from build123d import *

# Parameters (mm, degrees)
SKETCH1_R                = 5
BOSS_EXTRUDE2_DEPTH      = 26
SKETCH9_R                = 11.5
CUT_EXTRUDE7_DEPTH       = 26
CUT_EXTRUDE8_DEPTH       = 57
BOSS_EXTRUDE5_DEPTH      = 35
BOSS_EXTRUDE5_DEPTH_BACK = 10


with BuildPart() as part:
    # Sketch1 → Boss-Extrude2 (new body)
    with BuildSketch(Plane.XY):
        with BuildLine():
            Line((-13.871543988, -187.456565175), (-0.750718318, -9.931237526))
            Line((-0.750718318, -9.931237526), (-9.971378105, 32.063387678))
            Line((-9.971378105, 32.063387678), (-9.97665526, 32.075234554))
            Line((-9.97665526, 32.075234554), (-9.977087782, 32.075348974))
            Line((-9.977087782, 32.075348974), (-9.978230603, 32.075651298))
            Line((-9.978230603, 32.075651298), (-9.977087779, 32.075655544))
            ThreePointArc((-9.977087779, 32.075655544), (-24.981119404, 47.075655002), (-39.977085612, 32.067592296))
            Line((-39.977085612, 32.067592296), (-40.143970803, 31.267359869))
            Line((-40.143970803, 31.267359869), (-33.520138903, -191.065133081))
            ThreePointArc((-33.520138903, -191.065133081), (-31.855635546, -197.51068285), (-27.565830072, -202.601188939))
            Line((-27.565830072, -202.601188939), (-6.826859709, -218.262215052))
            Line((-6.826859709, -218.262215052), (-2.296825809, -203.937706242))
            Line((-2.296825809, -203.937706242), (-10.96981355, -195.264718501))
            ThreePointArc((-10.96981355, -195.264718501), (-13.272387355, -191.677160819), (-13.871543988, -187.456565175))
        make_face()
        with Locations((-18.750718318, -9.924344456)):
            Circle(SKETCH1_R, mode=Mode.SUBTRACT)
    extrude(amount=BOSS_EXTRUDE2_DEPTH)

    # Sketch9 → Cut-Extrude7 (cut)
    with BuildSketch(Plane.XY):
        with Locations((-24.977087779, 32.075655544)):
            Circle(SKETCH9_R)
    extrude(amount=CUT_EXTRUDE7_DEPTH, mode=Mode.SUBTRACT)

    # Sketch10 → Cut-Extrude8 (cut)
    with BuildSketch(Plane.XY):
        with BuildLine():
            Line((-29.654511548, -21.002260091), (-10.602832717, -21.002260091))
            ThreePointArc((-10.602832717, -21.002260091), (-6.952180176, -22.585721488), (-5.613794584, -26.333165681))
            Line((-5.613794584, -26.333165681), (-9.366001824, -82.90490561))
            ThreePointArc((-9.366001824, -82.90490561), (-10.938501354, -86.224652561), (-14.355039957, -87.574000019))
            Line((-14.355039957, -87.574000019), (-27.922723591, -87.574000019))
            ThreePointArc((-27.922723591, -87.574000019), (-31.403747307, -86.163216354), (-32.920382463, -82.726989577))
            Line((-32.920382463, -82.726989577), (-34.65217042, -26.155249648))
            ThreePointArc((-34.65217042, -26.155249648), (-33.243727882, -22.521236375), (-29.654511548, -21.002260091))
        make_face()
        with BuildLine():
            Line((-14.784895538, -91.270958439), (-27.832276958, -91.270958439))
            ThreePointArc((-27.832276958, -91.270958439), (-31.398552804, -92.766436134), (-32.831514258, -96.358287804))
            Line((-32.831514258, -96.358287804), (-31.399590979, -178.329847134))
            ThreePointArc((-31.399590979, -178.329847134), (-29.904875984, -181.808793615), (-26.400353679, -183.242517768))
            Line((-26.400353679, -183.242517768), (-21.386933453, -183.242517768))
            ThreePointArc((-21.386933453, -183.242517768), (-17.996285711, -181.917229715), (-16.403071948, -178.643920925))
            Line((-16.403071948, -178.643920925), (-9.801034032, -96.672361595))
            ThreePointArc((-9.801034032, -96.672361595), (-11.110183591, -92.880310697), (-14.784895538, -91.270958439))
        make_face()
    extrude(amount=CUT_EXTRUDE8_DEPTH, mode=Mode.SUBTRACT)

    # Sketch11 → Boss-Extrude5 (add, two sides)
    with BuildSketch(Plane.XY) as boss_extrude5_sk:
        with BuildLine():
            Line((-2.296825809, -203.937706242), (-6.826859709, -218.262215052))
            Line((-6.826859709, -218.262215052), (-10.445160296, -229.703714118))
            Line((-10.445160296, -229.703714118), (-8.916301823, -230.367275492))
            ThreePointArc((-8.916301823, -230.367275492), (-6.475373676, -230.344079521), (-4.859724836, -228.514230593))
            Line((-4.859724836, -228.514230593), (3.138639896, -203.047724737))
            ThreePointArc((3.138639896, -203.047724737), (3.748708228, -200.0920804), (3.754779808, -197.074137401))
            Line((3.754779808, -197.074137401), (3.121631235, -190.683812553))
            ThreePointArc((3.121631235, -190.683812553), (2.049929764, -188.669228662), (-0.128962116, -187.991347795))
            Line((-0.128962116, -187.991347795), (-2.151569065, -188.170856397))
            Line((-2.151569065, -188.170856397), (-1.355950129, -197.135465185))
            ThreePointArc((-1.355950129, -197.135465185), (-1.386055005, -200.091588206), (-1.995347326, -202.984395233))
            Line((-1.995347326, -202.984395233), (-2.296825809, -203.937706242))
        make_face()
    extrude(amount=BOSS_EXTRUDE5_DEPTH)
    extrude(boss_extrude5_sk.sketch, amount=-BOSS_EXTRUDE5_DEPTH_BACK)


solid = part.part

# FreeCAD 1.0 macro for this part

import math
import FreeCAD as App
import Part
import Sketcher
Q = App.Units.Quantity

doc = App.newDocument("Part")
body = doc.addObject("PartDesign::Body", "Body")

# Sketch on XY plane
sketch1 = body.newObject("Sketcher::SketchObject", "Sketch")
sketch1.AttachmentSupport = (doc.getObject("XY_Plane"), [""])
sketch1.MapMode = "FlatFace"
sketch1.addGeometry([
    Part.LineSegment(App.Vector(-13.871544, -187.456565, 0), App.Vector(-0.750718, -9.931238, 0)),  # 0
    Part.LineSegment(App.Vector(-0.750718, -9.931238, 0), App.Vector(-9.971378, 32.063388, 0)),  # 1
    Part.LineSegment(App.Vector(-9.971378, 32.063388, 0), App.Vector(-9.976655, 32.075235, 0)),  # 2
    Part.LineSegment(App.Vector(-9.976655, 32.075235, 0), App.Vector(-9.977088, 32.075349, 0)),  # 3
    Part.LineSegment(App.Vector(-9.977088, 32.075349, 0), App.Vector(-9.978231, 32.075651, 0)),  # 4
    Part.LineSegment(App.Vector(-9.978231, 32.075651, 0), App.Vector(-9.977088, 32.075656, 0)),  # 5
    Part.ArcOfCircle(Part.Circle(App.Vector(-24.977088, 32.075656, 0), App.Vector(0, 0, 1), 15), math.radians(0), math.radians(180.030799)),  # 6
    Part.LineSegment(App.Vector(-39.977086, 32.067592, 0), App.Vector(-40.143971, 31.26736, 0)),  # 7
    Part.LineSegment(App.Vector(-40.143971, 31.26736, 0), App.Vector(-33.520139, -191.065133, 0)),  # 8
    Part.ArcOfCircle(Part.Circle(App.Vector(-18.526427, -190.630842, 0), App.Vector(0, 0, 1), 15), math.radians(-178.3409), math.radians(-127.058265)),  # 9
    Part.LineSegment(App.Vector(-27.56583, -202.601189, 0), App.Vector(-6.82686, -218.262215, 0)),  # 10
    Part.LineSegment(App.Vector(-6.82686, -218.262215, 0), App.Vector(-2.296826, -203.937706, 0)),  # 11
    Part.LineSegment(App.Vector(-2.296826, -203.937706, 0), App.Vector(-10.969814, -195.264719, 0)),  # 12
    Part.ArcOfCircle(Part.Circle(App.Vector(-3.898746, -188.193651, 0), App.Vector(0, 0, 1), 10), math.radians(175.772978), math.radians(225)),  # 13
    Part.Circle(App.Vector(-18.750718, -9.924344, 0), App.Vector(0, 0, 1), 5),  # 14
], False)
sketch1.addConstraint([
    Sketcher.Constraint("Coincident", 0, 2, 1, 1),
    Sketcher.Constraint("Coincident", 1, 2, 2, 1),
    Sketcher.Constraint("Coincident", 2, 2, 3, 1),
    Sketcher.Constraint("Coincident", 3, 2, 4, 1),
    Sketcher.Constraint("Coincident", 4, 2, 5, 1),
    Sketcher.Constraint("Coincident", 5, 2, 6, 1),
    Sketcher.Constraint("Coincident", 6, 2, 7, 1),
    Sketcher.Constraint("Coincident", 7, 2, 8, 1),
    Sketcher.Constraint("Coincident", 8, 2, 9, 1),
    Sketcher.Constraint("Coincident", 9, 2, 10, 1),
    Sketcher.Constraint("Coincident", 10, 2, 11, 1),
    Sketcher.Constraint("Coincident", 11, 2, 12, 1),
    Sketcher.Constraint("Coincident", 12, 2, 13, 2),
    Sketcher.Constraint("Coincident", 13, 1, 0, 1),
    Sketcher.Constraint("Diameter", 14, Q("10 mm")),
    Sketcher.Constraint("Radius", 6, Q("15 mm")),
    Sketcher.Constraint("Radius", 9, Q("15 mm")),
    Sketcher.Constraint("Radius", 13, Q("10 mm")),
    Sketcher.Constraint("DistanceY", 14, 3, 6, 3, Q("42 mm")),
    Sketcher.Constraint("DistanceX", 14, 3, 0, 2, Q("18 mm")),
    Sketcher.Constraint("DistanceX", 6, 3, 3, 2, Q("15 mm")),
    Sketcher.Constraint("DistanceX", 9, 3, 11, 2, Q("16.229601 mm")),
    Sketcher.Constraint("DistanceX", 13, 1, 13, 3, Q("9.972798 mm")),
    Sketcher.Constraint("Distance", 1, Q("42.994989 mm")),
    Sketcher.Constraint("Distance", 2, Q("0.012969 mm")),
    Sketcher.Constraint("Distance", 7, Q("0.817449 mm")),
    Sketcher.Constraint("Distance", 8, Q("222.431141 mm")),
    Sketcher.Constraint("Distance", 11, Q("15.02374 mm")),
    Sketcher.Constraint("DistanceY", 13, 3, -1, 1, Q("188.193651 mm")),
    Sketcher.Constraint("DistanceX", 14, 3, -1, 1, Q("18.750718 mm")),
    Sketcher.Constraint("DistanceX", 1, 2, -1, 1, Q("9.971378 mm")),
    Sketcher.Constraint("DistanceY", -1, 1, 3, 2, Q("32.075349 mm")),
    Sketcher.Constraint("DistanceX", 4, 2, -1, 1, Q("9.978231 mm")),
    Sketcher.Constraint("DistanceY", -1, 1, 4, 2, Q("32.075651 mm")),
    Sketcher.Constraint("DistanceX", 7, 2, -1, 1, Q("40.143971 mm")),
    Sketcher.Constraint("DistanceY", -1, 1, 7, 2, Q("31.26736 mm")),
    Sketcher.Constraint("DistanceX", 8, 2, -1, 1, Q("33.520139 mm")),
    Sketcher.Constraint("DistanceX", 9, 2, -1, 1, Q("27.56583 mm")),
    Sketcher.Constraint("DistanceY", 9, 2, -1, 1, Q("202.601189 mm")),
    Sketcher.Constraint("DistanceX", 10, 2, -1, 1, Q("6.82686 mm")),
    Sketcher.Constraint("DistanceY", 12, 2, -1, 1, Q("195.264719 mm")),
    Sketcher.Constraint("DistanceX", 6, 3, 9, 3, Q("6.450661 mm")),
    Sketcher.Constraint("DistanceX", 9, 3, 13, 3, Q("14.627681 mm")),
    Sketcher.Constraint("DistanceY", 13, 3, 1, 2, Q("220.257038 mm")),
    Sketcher.Constraint("DistanceY", 2, 2, 6, 3, Q("0.000421 mm")),
    Sketcher.Constraint("DistanceX", 2, 2, 13, 3, Q("6.07791 mm")),
    Sketcher.Constraint("DistanceY", 2, 2, 5, 2, Q("0.000421 mm")),
    Sketcher.Constraint("DistanceY", 10, 2, 8, 2, Q("27.197082 mm")),
])
pad1 = body.newObject("PartDesign::Pad", "Pad")
pad1.Profile = sketch1
pad1.Length = 26

# Sketch on XY plane
sketch2 = body.newObject("Sketcher::SketchObject", "Sketch001")
sketch2.AttachmentSupport = (doc.getObject("XY_Plane"), [""])
sketch2.MapMode = "FlatFace"
sketch2.addGeometry(Part.Circle(App.Vector(-25, 32, 0), App.Vector(0, 0, 1), 12), False)
sketch2.addConstraint([
    Sketcher.Constraint("Diameter", 0, Q("23 mm")),
    Sketcher.Constraint("DistanceX", 0, 3, -1, 1, Q("24.977088 mm")),
    Sketcher.Constraint("DistanceY", -1, 1, 0, 3, Q("32.075656 mm")),
])
pocket1 = body.newObject("PartDesign::Pocket", "Pocket")
pocket1.Profile = sketch2
pocket1.Length = 26
pocket1.Reversed = True

# Sketch on XY plane
sketch3 = body.newObject("Sketcher::SketchObject", "Sketch002")
sketch3.AttachmentSupport = (doc.getObject("XY_Plane"), [""])
sketch3.MapMode = "FlatFace"
sketch3.addGeometry([
    Part.LineSegment(App.Vector(-10.6, -21, 0), App.Vector(-29.7, -21, 0)),  # 0
    Part.ArcOfCircle(Part.Circle(App.Vector(-29.7, -26, 0), App.Vector(0, 0, 1), 5), math.radians(90), math.radians(182)),  # 1
    Part.LineSegment(App.Vector(-34.7, -26.2, 0), App.Vector(-32.9, -82.7, 0)),  # 2
    Part.ArcOfCircle(Part.Circle(App.Vector(-27.9, -82.6, 0), App.Vector(0, 0, 1), 5), math.radians(-178), math.radians(-90)),  # 3
    Part.LineSegment(App.Vector(-27.9, -87.6, 0), App.Vector(-14.4, -87.6, 0)),  # 4
    Part.ArcOfCircle(Part.Circle(App.Vector(-14.4, -82.6, 0), App.Vector(0, 0, 1), 5), math.radians(-90), math.radians(-4)),  # 5
    Part.LineSegment(App.Vector(-9.4, -82.9, 0), App.Vector(-5.6, -26.3, 0)),  # 6
    Part.ArcOfCircle(Part.Circle(App.Vector(-10.6, -26, 0), App.Vector(0, 0, 1), 5), math.radians(-4), math.radians(90)),  # 7
    Part.LineSegment(App.Vector(-14.8, -91.3, 0), App.Vector(-27.8, -91.3, 0)),  # 8
    Part.ArcOfCircle(Part.Circle(App.Vector(-27.8, -96.3, 0), App.Vector(0, 0, 1), 5), math.radians(90), math.radians(181)),  # 9
    Part.LineSegment(App.Vector(-32.8, -96.4, 0), App.Vector(-31.4, -178.3, 0)),  # 10
    Part.ArcOfCircle(Part.Circle(App.Vector(-26.4, -178.2, 0), App.Vector(0, 0, 1), 5), math.radians(-179), math.radians(-90)),  # 11
    Part.LineSegment(App.Vector(-26.4, -183.2, 0), App.Vector(-21.4, -183.2, 0)),  # 12
    Part.ArcOfCircle(Part.Circle(App.Vector(-21.4, -178.2, 0), App.Vector(0, 0, 1), 5), math.radians(-90), math.radians(-5)),  # 13
    Part.LineSegment(App.Vector(-16.4, -178.6, 0), App.Vector(-9.8, -96.7, 0)),  # 14
    Part.ArcOfCircle(Part.Circle(App.Vector(-14.8, -96.3, 0), App.Vector(0, 0, 1), 5), math.radians(-5), math.radians(90)),  # 15
], False)
sketch3.addConstraint([
    Sketcher.Constraint("Tangent", 0, 2, 1, 1),
    Sketcher.Constraint("Tangent", 1, 2, 2, 1),
    Sketcher.Constraint("Tangent", 2, 2, 3, 1),
    Sketcher.Constraint("Tangent", 3, 2, 4, 1),
    Sketcher.Constraint("Tangent", 4, 2, 5, 1),
    Sketcher.Constraint("Tangent", 5, 2, 6, 1),
    Sketcher.Constraint("Tangent", 6, 2, 7, 1),
    Sketcher.Constraint("Tangent", 7, 2, 0, 1),
    Sketcher.Constraint("Tangent", 8, 2, 9, 1),
    Sketcher.Constraint("Tangent", 9, 2, 10, 1),
    Sketcher.Constraint("Tangent", 10, 2, 11, 1),
    Sketcher.Constraint("Tangent", 11, 2, 12, 1),
    Sketcher.Constraint("Tangent", 12, 2, 13, 1),
    Sketcher.Constraint("Tangent", 13, 2, 14, 1),
    Sketcher.Constraint("Tangent", 14, 2, 15, 1),
    Sketcher.Constraint("Tangent", 15, 2, 8, 1),
    Sketcher.Constraint("Horizontal", 0),
    Sketcher.Constraint("Horizontal", 4),
    Sketcher.Constraint("Horizontal", 8),
    Sketcher.Constraint("Horizontal", 12),
    Sketcher.Constraint("Equal", 1, 3),
    Sketcher.Constraint("Equal", 3, 5),
    Sketcher.Constraint("Equal", 5, 7),
    Sketcher.Constraint("Equal", 7, 9),
    Sketcher.Constraint("Equal", 9, 11),
    Sketcher.Constraint("Equal", 11, 13),
    Sketcher.Constraint("Equal", 13, 15),
    Sketcher.Constraint("Radius", 1, Q("5 mm")),
    Sketcher.Constraint("DistanceY", 3, 3, -1, 1, Q("82.574 mm")),
    Sketcher.Constraint("DistanceX", 5, 2, -1, 1, Q("9.366002 mm")),
    Sketcher.Constraint("DistanceX", 0, 2, 0, 1, Q("19.051679 mm")),
    Sketcher.Constraint("DistanceX", 8, 2, 8, 1, Q("13.047381 mm")),
    Sketcher.Constraint("DistanceX", 12, 1, 12, 2, Q("5.01342 mm")),
    Sketcher.Constraint("DistanceY", 9, 3, 1, 3, Q("70.268698 mm")),
    Sketcher.Constraint("DistanceY", 9, 2, 2, 2, Q("13.631298 mm")),
    Sketcher.Constraint("Distance", 2, Q("56.598241 mm")),
    Sketcher.Constraint("Distance", 6, Q("56.696039 mm")),
    Sketcher.Constraint("DistanceX", 4, 1, 4, 2, Q("13.567684 mm")),
    Sketcher.Constraint("DistanceX", 10, 2, -1, 1, Q("31.399591 mm")),
    Sketcher.Constraint("DistanceY", 13, 2, -1, 1, Q("178.643921 mm")),
])
pocket2 = body.newObject("PartDesign::Pocket", "Pocket001")
pocket2.Profile = sketch3
pocket2.Length = 57
pocket2.Reversed = True

# Sketch on XY plane
sketch4 = body.newObject("Sketcher::SketchObject", "Sketch003")
sketch4.AttachmentSupport = (doc.getObject("XY_Plane"), [""])
sketch4.MapMode = "FlatFace"
sketch4.addGeometry([
    Part.LineSegment(App.Vector(-2.3, -203.9, 0), App.Vector(-10.4, -229.7, 0)),  # 0
    Part.LineSegment(App.Vector(-10.4, -229.7, 0), App.Vector(-8.9, -230.4, 0)),  # 1
    Part.ArcOfCircle(Part.Circle(App.Vector(-7.7, -227.6, 0), App.Vector(0, 0, 1), 3), math.radians(-113), math.radians(-17)),  # 2
    Part.LineSegment(App.Vector(-4.9, -228.5, 0), App.Vector(3.1, -203, 0)),  # 3
    Part.ArcOfCircle(Part.Circle(App.Vector(-11.2, -198.6, 0), App.Vector(0, 0, 1), 15), math.radians(-17), math.radians(6)),  # 4
    Part.LineSegment(App.Vector(3.8, -197.1, 0), App.Vector(3.1, -190.7, 0)),  # 5
    Part.ArcOfCircle(Part.Circle(App.Vector(0.1, -191, 0), App.Vector(0, 0, 1), 3), math.radians(6), math.radians(95)),  # 6
    Part.LineSegment(App.Vector(-0.1, -188, 0), App.Vector(-2.2, -188.2, 0)),  # 7
    Part.LineSegment(App.Vector(-2.2, -188.2, 0), App.Vector(-1.4, -197.1, 0)),  # 8
    Part.ArcOfCircle(Part.Circle(App.Vector(-16.3, -198.5, 0), App.Vector(0, 0, 1), 15), math.radians(-18), math.radians(5)),  # 9
    Part.LineSegment(App.Vector(-2, -203, 0), App.Vector(-2.3, -203.9, 0)),  # 10
], False)
sketch4.addConstraint([
    Sketcher.Constraint("Coincident", 0, 2, 1, 1),
    Sketcher.Constraint("Tangent", 1, 2, 2, 1),
    Sketcher.Constraint("Tangent", 2, 2, 3, 1),
    Sketcher.Constraint("Tangent", 3, 2, 4, 1),
    Sketcher.Constraint("Tangent", 4, 2, 5, 1),
    Sketcher.Constraint("Tangent", 5, 2, 6, 1),
    Sketcher.Constraint("Tangent", 6, 2, 7, 1),
    Sketcher.Constraint("Coincident", 7, 2, 8, 1),
    Sketcher.Constraint("Tangent", 8, 2, 9, 2),
    Sketcher.Constraint("Tangent", 9, 1, 10, 1),
    Sketcher.Constraint("Coincident", 10, 2, 0, 1),
    Sketcher.Constraint("Equal", 2, 6),
    Sketcher.Constraint("Equal", 4, 9),
    Sketcher.Constraint("Perpendicular", 7, 8),
    Sketcher.Constraint("Parallel", 0, 10),
    Sketcher.Constraint("Radius", 2, Q("3 mm")),
    Sketcher.Constraint("Radius", 4, Q("15 mm")),
    Sketcher.Constraint("DistanceX", 9, 3, 4, 2, Q("20.052001 mm")),
    Sketcher.Constraint("DistanceY", 6, 3, -1, 1, Q("190.979602 mm")),
    Sketcher.Constraint("DistanceX", 1, 2, -1, 1, Q("8.916302 mm")),
    Sketcher.Constraint("DistanceY", 2, 3, 6, 3, Q("36.635701 mm")),
    Sketcher.Constraint("DistanceX", 7, 2, 5, 2, Q("5.2732 mm")),
    Sketcher.Constraint("DistanceX", 8, 2, 6, 3, Q("1.492199 mm")),
    Sketcher.Constraint("Distance", 0, Q("27.02374 mm")),
    Sketcher.Constraint("Distance", 1, Q("1.66665 mm")),
    Sketcher.Constraint("Distance", 3, Q("26.69301 mm")),
    Sketcher.Constraint("DistanceX", 2, 3, -1, 1, Q("7.721879 mm")),
    Sketcher.Constraint("DistanceX", -1, 1, 6, 3, Q("0.136249 mm")),
    Sketcher.Constraint("DistanceX", 9, 3, -1, 1, Q("16.297221 mm")),
])
pad2 = body.newObject("PartDesign::Pad", "Pad001")
pad2.Profile = sketch4
pad2.Type = "TwoLengths"
pad2.Length = 35
pad2.Length2 = 10

doc.recompute()
